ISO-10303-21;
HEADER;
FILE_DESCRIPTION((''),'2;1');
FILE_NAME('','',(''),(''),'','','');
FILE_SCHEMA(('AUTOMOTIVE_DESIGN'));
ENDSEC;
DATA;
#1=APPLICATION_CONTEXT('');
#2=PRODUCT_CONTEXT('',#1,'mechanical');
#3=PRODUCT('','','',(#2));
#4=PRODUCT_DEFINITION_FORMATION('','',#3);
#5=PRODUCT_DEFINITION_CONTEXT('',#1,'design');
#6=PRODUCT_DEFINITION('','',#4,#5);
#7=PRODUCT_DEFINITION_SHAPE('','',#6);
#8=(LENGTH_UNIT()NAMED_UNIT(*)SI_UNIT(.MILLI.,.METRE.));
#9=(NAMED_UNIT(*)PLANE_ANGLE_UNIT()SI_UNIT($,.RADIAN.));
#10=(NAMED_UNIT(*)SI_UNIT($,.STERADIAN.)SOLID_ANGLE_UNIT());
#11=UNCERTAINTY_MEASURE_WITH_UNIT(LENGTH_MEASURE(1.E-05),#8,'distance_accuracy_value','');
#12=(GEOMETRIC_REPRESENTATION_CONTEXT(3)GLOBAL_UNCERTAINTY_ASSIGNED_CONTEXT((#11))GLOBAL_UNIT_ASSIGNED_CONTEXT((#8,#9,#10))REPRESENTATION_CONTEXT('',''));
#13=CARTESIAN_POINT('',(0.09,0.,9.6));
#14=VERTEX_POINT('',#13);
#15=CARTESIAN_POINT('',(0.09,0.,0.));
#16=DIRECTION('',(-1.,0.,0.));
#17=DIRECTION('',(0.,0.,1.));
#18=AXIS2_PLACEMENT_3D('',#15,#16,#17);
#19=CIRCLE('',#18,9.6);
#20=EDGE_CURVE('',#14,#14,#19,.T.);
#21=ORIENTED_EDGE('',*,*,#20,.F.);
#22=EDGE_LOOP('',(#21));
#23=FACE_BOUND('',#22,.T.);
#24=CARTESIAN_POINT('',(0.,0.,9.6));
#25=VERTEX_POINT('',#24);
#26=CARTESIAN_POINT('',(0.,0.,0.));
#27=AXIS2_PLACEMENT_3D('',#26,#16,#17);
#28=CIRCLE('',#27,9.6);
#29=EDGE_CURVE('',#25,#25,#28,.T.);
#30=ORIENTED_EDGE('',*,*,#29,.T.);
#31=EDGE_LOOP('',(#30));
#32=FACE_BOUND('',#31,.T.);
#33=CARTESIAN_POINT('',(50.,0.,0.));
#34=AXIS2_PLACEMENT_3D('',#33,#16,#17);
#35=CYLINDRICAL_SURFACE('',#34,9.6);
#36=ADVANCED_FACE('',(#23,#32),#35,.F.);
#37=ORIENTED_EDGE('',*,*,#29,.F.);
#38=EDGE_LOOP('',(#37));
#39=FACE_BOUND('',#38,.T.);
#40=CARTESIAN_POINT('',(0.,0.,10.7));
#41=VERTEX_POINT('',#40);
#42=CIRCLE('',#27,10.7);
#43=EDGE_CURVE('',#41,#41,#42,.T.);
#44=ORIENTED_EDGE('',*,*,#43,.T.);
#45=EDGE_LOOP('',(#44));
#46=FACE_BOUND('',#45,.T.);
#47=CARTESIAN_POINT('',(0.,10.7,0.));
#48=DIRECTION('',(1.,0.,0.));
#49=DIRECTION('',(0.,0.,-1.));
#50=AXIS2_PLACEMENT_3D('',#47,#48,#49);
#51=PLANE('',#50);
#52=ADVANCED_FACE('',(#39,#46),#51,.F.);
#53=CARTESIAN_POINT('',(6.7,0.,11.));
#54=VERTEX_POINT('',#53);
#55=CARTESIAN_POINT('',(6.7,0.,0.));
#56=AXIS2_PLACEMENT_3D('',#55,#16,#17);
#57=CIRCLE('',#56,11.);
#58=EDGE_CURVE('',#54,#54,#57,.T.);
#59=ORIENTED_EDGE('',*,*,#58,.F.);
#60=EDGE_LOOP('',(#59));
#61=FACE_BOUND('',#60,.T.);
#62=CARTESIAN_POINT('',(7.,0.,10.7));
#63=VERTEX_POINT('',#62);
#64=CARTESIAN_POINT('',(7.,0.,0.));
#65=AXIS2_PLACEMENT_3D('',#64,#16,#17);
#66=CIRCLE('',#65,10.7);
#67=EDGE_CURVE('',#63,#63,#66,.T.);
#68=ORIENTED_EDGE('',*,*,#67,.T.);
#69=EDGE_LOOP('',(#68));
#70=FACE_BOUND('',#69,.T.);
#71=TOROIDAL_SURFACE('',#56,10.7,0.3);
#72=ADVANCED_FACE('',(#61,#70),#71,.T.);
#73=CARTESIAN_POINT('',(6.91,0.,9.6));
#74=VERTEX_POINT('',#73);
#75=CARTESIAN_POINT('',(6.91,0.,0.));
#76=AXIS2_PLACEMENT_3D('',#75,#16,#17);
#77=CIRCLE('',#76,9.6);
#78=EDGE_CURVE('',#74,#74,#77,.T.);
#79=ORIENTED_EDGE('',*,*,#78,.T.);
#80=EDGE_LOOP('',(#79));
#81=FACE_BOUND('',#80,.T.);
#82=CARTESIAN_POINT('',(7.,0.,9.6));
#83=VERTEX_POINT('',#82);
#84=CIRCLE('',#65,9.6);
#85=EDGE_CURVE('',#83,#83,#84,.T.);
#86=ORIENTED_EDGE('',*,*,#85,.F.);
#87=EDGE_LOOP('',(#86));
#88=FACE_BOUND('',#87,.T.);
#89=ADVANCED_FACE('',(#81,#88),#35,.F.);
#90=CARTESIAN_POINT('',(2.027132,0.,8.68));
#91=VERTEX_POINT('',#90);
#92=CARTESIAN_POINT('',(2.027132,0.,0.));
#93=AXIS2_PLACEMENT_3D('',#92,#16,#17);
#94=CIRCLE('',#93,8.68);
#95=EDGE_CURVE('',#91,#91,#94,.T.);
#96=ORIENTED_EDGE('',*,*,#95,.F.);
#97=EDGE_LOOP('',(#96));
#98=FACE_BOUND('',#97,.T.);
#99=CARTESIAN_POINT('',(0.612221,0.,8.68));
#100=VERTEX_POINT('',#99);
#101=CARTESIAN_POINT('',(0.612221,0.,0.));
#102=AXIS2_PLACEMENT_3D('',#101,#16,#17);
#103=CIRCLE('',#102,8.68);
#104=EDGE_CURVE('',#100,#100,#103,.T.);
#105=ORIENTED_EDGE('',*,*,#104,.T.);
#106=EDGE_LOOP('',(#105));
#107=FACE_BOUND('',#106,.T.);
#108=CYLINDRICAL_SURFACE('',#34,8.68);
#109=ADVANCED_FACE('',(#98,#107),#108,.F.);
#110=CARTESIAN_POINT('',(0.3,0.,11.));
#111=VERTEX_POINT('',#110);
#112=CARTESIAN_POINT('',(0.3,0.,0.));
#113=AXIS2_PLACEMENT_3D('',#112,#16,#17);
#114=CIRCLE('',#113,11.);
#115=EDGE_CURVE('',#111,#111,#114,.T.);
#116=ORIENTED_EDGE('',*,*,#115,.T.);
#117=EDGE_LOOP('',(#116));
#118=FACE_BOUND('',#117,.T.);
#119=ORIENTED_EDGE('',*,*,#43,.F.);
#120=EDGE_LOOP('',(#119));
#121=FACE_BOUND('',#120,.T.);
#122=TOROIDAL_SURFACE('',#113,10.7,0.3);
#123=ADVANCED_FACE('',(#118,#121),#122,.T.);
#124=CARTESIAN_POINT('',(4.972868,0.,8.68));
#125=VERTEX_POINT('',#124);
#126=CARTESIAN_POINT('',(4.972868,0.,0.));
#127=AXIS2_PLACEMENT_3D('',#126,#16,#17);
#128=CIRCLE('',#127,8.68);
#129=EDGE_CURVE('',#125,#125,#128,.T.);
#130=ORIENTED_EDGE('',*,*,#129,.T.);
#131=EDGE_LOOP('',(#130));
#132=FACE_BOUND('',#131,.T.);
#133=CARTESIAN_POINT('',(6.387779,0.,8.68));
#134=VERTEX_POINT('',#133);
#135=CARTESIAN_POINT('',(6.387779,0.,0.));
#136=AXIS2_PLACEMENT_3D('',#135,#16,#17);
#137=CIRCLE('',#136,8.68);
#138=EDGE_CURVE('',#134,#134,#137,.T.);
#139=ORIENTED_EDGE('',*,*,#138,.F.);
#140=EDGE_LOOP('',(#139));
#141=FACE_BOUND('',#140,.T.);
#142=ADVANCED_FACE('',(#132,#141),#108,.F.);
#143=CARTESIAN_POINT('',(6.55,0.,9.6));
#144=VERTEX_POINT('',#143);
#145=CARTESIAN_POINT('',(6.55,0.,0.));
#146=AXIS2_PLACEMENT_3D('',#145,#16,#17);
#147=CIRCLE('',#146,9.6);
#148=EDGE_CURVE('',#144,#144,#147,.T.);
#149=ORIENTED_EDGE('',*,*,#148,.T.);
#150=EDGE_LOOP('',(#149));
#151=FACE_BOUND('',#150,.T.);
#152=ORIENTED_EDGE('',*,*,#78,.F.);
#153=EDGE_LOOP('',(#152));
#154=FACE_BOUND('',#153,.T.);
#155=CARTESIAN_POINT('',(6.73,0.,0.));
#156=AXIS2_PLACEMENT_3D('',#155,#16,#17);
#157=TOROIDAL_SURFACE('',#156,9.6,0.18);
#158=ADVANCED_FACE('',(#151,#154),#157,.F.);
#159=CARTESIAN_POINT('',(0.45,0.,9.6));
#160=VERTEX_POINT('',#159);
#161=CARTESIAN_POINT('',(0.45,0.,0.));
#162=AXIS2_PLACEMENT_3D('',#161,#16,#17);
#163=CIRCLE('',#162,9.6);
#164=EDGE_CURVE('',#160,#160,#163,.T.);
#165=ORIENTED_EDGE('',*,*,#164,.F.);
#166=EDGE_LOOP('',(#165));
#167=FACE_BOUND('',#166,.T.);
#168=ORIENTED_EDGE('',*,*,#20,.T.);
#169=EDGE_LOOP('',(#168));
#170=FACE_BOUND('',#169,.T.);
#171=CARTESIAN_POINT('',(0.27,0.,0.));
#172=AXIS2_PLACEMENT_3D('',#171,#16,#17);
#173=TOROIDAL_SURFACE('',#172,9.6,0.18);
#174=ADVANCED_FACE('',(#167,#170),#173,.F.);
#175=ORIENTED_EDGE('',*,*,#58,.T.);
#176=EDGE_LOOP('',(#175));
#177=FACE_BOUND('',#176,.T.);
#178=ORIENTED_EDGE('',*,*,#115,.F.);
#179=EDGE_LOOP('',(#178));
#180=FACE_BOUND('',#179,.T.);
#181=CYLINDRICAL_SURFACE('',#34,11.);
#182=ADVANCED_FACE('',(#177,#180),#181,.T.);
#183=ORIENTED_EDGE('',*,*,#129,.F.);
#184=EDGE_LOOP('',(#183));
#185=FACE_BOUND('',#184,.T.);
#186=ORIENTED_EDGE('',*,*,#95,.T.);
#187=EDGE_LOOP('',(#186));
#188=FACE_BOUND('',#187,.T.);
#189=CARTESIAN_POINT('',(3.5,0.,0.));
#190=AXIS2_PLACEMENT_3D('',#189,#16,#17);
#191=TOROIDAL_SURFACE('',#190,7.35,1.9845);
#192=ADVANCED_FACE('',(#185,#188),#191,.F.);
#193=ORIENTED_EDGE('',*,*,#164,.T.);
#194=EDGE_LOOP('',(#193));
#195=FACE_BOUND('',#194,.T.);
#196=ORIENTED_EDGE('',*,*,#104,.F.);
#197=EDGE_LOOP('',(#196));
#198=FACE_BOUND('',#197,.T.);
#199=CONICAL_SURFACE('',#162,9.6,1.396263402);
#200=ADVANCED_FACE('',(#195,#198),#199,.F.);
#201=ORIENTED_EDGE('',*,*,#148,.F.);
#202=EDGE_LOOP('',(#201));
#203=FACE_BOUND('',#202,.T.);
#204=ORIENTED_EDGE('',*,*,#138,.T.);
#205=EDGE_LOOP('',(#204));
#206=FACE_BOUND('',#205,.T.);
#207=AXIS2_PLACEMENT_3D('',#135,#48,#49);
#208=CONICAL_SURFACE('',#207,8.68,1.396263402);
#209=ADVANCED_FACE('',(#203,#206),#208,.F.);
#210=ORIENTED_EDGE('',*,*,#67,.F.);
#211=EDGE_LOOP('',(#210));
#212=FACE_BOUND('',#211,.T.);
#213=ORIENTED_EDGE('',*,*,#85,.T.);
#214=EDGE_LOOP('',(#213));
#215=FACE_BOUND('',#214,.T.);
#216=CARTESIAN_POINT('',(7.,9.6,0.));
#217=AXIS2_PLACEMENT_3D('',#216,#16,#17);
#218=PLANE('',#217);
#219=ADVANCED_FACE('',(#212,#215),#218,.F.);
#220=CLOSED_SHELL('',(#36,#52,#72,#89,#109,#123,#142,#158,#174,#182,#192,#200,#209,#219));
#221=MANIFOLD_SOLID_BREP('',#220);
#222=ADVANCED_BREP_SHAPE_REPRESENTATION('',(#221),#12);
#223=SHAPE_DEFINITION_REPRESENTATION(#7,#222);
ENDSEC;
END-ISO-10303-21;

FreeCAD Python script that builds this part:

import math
import FreeCAD as App
import Part
import Sketcher
Q = App.Units.Quantity

doc = App.newDocument("Part")
params = doc.addObject("Spreadsheet::Sheet", "Params")
for row, (alias, value) in enumerate([
    ("sketch1_radius", "0.3 mm"),
    ("sketch1_radius2", "0.18 mm"),
    ("sketch1_width", "6.4 mm"),
    ("sketch1_height", "1.1 mm"),
    ("sketch1_width2", "0.09 mm"),
    ("revolution_angle", "360 deg"),
], start=1):
    params.set(f"A{row}", alias)
    params.set(f"B{row}", "=" + value)
    params.setAlias(f"B{row}", alias)

body = doc.addObject("PartDesign::Body", "Body")

# Sketch on XY plane
sketch1 = doc.addObject("Sketcher::SketchObject", "Sketch")
body.addObject(sketch1)
sketch1.AttachmentSupport = (doc.XY_Plane, [""])
sketch1.MapMode = "FlatFace"
sketch1.addGeometry(Part.LineSegment(App.Vector(0, 9.6, 0), App.Vector(0.09, 9.6, 0)), False)
sketch1.addGeometry(Part.ArcOfCircle(Part.Circle(App.Vector(0.27, 9.6, 0), App.Vector(0, 0, 1), 0.18), math.radians(0), math.radians(180)), False)
sketch1.addGeometry(Part.LineSegment(App.Vector(0.45, 9.6, 0), App.Vector(0.61, 8.68, 0)), False)
sketch1.addGeometry(Part.LineSegment(App.Vector(0.61, 8.68, 0), App.Vector(2.03, 8.68, 0)), False)
sketch1.addGeometry(Part.ArcOfCircle(Part.Circle(App.Vector(3.5, 7.35, 0), App.Vector(0, 0, 1), 1.98), math.radians(42), math.radians(138)), False)
sketch1.addGeometry(Part.LineSegment(App.Vector(4.97, 8.68, 0), App.Vector(6.39, 8.68, 0)), False)
sketch1.addGeometry(Part.LineSegment(App.Vector(6.39, 8.68, 0), App.Vector(6.55, 9.6, 0)), False)
sketch1.addGeometry(Part.ArcOfCircle(Part.Circle(App.Vector(6.73, 9.6, 0), App.Vector(0, 0, 1), 0.18), math.radians(0), math.radians(180)), False)
sketch1.addGeometry(Part.LineSegment(App.Vector(6.91, 9.6, 0), App.Vector(7, 9.6, 0)), False)
sketch1.addGeometry(Part.LineSegment(App.Vector(7, 9.6, 0), App.Vector(7, 10.7, 0)), False)
sketch1.addGeometry(Part.ArcOfCircle(Part.Circle(App.Vector(6.7, 10.7, 0), App.Vector(0, 0, 1), 0.3), math.radians(0), math.radians(90)), False)
sketch1.addGeometry(Part.LineSegment(App.Vector(6.7, 11, 0), App.Vector(0.3, 11, 0)), False)
sketch1.addGeometry(Part.ArcOfCircle(Part.Circle(App.Vector(0.3, 10.7, 0), App.Vector(0, 0, 1), 0.3), math.radians(90), math.radians(180)), False)
sketch1.addGeometry(Part.LineSegment(App.Vector(0, 10.7, 0), App.Vector(0, 9.6, 0)), False)
sketch1.addConstraint(Sketcher.Constraint("Coincident", 0, 2, 1, 2))
sketch1.addConstraint(Sketcher.Constraint("Coincident", 1, 1, 2, 1))
sketch1.addConstraint(Sketcher.Constraint("Coincident", 2, 2, 3, 1))
sketch1.addConstraint(Sketcher.Constraint("Coincident", 3, 2, 4, 2))
sketch1.addConstraint(Sketcher.Constraint("Coincident", 4, 1, 5, 1))
sketch1.addConstraint(Sketcher.Constraint("Coincident", 5, 2, 6, 1))
sketch1.addConstraint(Sketcher.Constraint("Coincident", 6, 2, 7, 2))
sketch1.addConstraint(Sketcher.Constraint("Coincident", 7, 1, 8, 1))
sketch1.addConstraint(Sketcher.Constraint("Coincident", 8, 2, 9, 1))
sketch1.addConstraint(Sketcher.Constraint("Tangent", 9, 2, 10, 1))
sketch1.addConstraint(Sketcher.Constraint("Tangent", 10, 2, 11, 1))
sketch1.addConstraint(Sketcher.Constraint("Tangent", 11, 2, 12, 1))
sketch1.addConstraint(Sketcher.Constraint("Tangent", 12, 2, 13, 1))
sketch1.addConstraint(Sketcher.Constraint("Coincident", 13, 2, 0, 1))
sketch1.addConstraint(Sketcher.Constraint("Horizontal", 0))
sketch1.addConstraint(Sketcher.Constraint("Horizontal", 3))
sketch1.addConstraint(Sketcher.Constraint("Horizontal", 5))
sketch1.addConstraint(Sketcher.Constraint("Horizontal", 8))
sketch1.addConstraint(Sketcher.Constraint("Vertical", 9))
sketch1.addConstraint(Sketcher.Constraint("Horizontal", 11))
sketch1.addConstraint(Sketcher.Constraint("Vertical", 13))
sketch1.addConstraint(Sketcher.Constraint("Equal", 1, 7))
sketch1.addConstraint(Sketcher.Constraint("Equal", 10, 12))
sketch1.addConstraint(Sketcher.Constraint("PointOnObject", 12, 2, -2))
sketch1.addConstraint(Sketcher.Constraint("Horizontal", 1, 3, 7, 3))
sketch1.addConstraint(Sketcher.Constraint("Horizontal", 7, 3, 0, 2))
sketch1.addConstraint(Sketcher.Constraint("Horizontal", 0, 2, 1, 1))
sketch1.addConstraint(Sketcher.Constraint("Horizontal", 3, 2, 4, 1))
sketch1.addConstraint(Sketcher.Constraint("Horizontal", 1, 1, 6, 2))
sketch1.addConstraint(Sketcher.Constraint("Horizontal", 6, 2, 7, 1))
sketch1.addConstraint(Sketcher.Constraint("Equal", 3, 5))
sketch1.addConstraint(Sketcher.Constraint("Equal", 0, 8))
sketch1.addConstraint(Sketcher.Constraint("Equal", 2, 6))
sketch1.addConstraint(Sketcher.Constraint("Radius", 10, Q("0.3 mm")))
sketch1.addConstraint(Sketcher.Constraint("Angle", 2, Q("-80 deg")))
sketch1.addConstraint(Sketcher.Constraint("Radius", 1, Q("0.18 mm")))
sketch1.addConstraint(Sketcher.Constraint("DistanceX", 11, 2, 11, 1, Q("6.4 mm")))
sketch1.addConstraint(Sketcher.Constraint("DistanceY", 9, 1, 9, 2, Q("1.1 mm")))
sketch1.addConstraint(Sketcher.Constraint("DistanceY", -1, 1, 10, 2, Q("11 mm")))
sketch1.addConstraint(Sketcher.Constraint("DistanceX", 0, 1, 0, 2, Q("0.09 mm")))
sketch1.addConstraint(Sketcher.Constraint("Radius", 4, Q("1.9845 mm")))
sketch1.addConstraint(Sketcher.Constraint("DistanceY", -1, 1, 4, 3, Q("7.35 mm")))
sketch1.addConstraint(Sketcher.Constraint("DistanceY", -1, 1, 2, 2, Q("8.68 mm")))
sketch1.setExpression("Constraints[33]", "Params.sketch1_radius")
sketch1.setExpression("Constraints[35]", "Params.sketch1_radius2")
sketch1.setExpression("Constraints[36]", "Params.sketch1_width")
sketch1.setExpression("Constraints[37]", "Params.sketch1_height")
sketch1.setExpression("Constraints[39]", "Params.sketch1_width2")
revolution = doc.addObject("PartDesign::Revolution", "Revolution")
body.addObject(revolution)
revolution.Profile = sketch1
revolution.ReferenceAxis = (sketch1, ["H_Axis"])
revolution.setExpression("Angle", "Params.revolution_angle")

doc.recompute()
